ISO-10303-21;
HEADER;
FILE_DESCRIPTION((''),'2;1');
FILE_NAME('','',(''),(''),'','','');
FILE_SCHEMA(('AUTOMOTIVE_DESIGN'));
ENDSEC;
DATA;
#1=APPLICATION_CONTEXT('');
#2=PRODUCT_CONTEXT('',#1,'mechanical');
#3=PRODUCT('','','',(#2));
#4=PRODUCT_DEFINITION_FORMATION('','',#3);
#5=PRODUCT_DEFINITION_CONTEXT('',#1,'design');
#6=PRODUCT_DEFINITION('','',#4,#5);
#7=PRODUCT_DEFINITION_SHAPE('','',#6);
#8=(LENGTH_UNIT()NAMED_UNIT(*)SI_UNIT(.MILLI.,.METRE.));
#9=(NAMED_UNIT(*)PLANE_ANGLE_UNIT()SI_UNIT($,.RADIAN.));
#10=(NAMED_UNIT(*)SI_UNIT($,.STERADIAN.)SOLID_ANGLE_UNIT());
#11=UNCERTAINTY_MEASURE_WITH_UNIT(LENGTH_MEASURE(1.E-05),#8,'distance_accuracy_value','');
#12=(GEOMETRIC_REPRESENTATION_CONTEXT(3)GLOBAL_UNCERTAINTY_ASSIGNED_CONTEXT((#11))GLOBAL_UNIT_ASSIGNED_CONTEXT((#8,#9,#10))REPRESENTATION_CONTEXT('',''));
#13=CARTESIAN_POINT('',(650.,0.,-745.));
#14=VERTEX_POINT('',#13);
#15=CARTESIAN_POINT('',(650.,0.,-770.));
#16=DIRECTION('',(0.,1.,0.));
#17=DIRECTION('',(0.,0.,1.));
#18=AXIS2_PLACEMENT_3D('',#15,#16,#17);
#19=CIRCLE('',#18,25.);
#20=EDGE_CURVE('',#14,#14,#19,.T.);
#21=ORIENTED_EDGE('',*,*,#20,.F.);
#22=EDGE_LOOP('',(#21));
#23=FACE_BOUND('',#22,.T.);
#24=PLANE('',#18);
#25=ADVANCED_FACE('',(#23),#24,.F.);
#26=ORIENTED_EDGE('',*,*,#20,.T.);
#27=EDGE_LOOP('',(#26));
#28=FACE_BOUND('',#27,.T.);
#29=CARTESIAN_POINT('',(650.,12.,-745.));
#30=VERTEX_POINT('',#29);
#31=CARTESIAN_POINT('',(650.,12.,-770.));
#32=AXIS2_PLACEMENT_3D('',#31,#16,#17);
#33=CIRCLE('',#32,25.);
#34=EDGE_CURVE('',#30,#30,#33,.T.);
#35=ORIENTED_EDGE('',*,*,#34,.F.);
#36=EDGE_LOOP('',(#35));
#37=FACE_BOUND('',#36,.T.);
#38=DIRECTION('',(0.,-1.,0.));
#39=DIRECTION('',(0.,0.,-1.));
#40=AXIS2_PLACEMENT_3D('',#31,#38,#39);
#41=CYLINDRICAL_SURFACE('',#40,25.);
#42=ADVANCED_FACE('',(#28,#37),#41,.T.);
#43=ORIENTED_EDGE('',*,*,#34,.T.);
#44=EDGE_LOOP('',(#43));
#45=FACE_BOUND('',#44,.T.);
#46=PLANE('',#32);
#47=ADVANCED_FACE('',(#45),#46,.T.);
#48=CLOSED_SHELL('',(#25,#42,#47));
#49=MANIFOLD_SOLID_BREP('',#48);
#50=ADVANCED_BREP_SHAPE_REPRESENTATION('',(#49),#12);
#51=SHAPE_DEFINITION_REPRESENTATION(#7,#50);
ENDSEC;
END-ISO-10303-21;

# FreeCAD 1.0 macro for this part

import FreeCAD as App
import Part
import Sketcher

V = App.Vector
Q = App.Units.Quantity

doc = App.newDocument("Part")
body = doc.addObject("PartDesign::Body", "Body")

# Sketch on XZ plane
sketch1 = body.newObject("Sketcher::SketchObject", "Sketch")
sketch1.AttachmentSupport = (doc.getObject("XZ_Plane"), [""])
sketch1.MapMode = "FlatFace"
sketch1.addGeometry(Part.Circle(V(650, -770, 0), V(0, 0, 1), 25), False)
sketch1.addConstraint([
    Sketcher.Constraint("Diameter", 0, Q("50 mm")),
    Sketcher.Constraint("DistanceX", -1, 1, 0, 3, Q("650 mm")),
    Sketcher.Constraint("DistanceY", 0, 3, -1, 1, Q("770 mm")),
])
pad1 = body.newObject("PartDesign::Pad", "Pad")
pad1.Profile = sketch1
pad1.Length = 12
pad1.Reversed = True

doc.recompute()
